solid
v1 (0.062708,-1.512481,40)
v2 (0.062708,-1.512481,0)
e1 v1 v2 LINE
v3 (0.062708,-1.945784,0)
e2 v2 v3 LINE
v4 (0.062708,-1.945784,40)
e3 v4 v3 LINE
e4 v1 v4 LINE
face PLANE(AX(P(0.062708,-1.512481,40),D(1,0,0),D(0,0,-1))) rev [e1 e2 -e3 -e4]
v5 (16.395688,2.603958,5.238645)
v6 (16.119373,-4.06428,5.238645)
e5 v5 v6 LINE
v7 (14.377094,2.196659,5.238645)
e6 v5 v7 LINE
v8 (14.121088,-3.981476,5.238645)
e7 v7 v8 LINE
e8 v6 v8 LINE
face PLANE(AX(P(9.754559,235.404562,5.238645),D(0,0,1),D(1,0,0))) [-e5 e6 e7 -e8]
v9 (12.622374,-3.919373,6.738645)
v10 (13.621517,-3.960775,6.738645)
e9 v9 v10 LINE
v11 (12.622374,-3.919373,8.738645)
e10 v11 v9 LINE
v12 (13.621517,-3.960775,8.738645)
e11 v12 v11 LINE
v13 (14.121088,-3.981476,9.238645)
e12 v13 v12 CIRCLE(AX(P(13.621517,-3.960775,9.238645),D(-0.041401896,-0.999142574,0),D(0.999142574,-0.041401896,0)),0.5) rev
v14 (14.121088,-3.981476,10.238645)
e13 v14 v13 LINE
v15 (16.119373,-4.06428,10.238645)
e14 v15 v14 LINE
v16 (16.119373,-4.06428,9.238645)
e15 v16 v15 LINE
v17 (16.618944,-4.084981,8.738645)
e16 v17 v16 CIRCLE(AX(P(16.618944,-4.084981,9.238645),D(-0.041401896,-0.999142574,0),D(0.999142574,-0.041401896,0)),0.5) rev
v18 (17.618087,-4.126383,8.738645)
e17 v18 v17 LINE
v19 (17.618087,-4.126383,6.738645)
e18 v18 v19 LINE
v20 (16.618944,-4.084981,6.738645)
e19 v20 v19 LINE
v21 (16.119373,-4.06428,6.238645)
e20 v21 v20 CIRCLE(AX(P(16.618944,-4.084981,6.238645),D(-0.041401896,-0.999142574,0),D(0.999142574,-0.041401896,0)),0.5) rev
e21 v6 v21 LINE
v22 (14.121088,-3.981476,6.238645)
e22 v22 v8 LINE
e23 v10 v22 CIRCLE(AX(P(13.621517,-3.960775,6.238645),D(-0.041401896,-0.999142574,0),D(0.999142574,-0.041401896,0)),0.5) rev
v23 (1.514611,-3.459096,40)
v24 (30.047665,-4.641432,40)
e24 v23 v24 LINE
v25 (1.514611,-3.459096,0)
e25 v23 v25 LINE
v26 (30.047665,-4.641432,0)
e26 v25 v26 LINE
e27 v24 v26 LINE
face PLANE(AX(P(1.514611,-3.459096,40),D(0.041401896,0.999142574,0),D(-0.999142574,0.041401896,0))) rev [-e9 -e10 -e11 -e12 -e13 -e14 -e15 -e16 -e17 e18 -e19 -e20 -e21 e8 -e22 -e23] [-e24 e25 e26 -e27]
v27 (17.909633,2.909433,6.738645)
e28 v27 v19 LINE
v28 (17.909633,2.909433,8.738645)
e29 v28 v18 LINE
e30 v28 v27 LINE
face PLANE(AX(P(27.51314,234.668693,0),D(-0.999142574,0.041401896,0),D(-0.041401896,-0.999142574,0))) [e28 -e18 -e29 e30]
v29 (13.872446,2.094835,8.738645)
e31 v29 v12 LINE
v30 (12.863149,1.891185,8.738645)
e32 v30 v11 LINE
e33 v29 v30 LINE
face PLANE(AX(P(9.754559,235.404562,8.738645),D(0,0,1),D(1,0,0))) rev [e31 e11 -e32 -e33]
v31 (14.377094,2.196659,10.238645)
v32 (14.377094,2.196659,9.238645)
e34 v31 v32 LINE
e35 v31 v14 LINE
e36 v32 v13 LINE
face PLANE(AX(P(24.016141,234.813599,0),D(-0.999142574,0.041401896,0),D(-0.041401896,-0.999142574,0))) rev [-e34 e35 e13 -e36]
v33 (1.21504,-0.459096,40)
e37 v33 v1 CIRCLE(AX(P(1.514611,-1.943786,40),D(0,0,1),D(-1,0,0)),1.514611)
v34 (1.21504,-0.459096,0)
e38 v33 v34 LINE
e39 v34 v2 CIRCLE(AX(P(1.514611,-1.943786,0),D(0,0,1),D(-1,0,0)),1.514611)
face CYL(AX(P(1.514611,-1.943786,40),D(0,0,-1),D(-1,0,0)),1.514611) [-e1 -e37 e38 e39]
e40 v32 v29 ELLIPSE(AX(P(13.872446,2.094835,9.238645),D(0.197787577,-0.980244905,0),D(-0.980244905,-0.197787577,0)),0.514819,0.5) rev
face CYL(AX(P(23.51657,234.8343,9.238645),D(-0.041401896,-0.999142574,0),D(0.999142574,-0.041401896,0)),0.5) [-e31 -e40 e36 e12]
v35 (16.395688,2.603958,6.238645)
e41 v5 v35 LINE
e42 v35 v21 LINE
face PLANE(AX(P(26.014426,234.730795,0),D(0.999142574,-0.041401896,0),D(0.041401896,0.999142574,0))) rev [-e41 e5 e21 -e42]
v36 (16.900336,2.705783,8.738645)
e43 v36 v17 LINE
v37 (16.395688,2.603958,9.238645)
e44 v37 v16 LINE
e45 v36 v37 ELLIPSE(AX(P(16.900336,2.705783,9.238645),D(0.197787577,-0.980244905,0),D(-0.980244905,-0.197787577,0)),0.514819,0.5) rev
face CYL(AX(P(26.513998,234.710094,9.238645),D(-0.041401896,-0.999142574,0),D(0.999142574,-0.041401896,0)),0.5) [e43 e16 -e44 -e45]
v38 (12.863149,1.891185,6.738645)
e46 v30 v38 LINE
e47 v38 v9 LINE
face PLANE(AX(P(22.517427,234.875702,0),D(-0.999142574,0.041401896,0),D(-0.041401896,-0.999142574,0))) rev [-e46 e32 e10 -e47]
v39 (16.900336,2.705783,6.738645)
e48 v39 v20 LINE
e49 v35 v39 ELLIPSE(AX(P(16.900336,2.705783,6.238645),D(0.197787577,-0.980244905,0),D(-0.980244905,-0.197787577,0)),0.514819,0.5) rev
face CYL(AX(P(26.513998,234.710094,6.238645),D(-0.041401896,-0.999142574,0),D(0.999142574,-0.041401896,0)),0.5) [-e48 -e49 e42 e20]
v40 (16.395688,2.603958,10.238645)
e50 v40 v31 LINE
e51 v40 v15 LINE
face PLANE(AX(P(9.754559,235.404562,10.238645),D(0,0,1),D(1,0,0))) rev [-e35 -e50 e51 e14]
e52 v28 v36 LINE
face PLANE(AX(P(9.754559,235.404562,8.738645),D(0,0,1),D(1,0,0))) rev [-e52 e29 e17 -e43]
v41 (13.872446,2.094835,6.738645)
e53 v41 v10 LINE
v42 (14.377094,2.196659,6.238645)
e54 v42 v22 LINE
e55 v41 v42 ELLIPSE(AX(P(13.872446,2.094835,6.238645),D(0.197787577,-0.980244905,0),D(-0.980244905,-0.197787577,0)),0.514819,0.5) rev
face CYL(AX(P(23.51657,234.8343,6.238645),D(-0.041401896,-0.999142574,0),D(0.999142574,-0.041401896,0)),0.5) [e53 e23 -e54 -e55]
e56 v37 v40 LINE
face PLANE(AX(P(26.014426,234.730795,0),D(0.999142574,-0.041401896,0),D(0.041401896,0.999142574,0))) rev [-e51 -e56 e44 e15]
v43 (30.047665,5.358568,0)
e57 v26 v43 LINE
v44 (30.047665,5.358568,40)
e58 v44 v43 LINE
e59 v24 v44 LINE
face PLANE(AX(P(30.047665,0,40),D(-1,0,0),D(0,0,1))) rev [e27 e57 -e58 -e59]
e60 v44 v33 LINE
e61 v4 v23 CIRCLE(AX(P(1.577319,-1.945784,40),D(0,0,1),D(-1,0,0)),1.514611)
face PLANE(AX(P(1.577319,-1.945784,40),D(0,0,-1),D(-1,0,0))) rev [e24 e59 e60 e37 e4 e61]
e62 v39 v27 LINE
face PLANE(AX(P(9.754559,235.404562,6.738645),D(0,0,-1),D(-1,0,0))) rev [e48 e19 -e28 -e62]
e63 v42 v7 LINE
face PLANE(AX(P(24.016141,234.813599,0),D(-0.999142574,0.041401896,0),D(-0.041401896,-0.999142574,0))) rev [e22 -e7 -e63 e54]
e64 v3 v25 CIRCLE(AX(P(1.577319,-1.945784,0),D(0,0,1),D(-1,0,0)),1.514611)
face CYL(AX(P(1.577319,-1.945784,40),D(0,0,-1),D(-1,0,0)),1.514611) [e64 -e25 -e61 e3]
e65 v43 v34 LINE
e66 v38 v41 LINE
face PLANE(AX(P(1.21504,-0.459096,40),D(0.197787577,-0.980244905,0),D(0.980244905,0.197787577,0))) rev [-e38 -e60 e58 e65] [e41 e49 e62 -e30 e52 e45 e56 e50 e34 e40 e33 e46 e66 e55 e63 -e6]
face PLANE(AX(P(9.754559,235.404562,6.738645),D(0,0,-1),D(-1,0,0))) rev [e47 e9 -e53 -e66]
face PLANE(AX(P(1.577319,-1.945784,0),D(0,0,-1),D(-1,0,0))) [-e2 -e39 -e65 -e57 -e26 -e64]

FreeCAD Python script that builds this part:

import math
import FreeCAD as App
import Part
import Sketcher

V = App.Vector

doc = App.newDocument("Part")
body = doc.addObject("PartDesign::Body", "Body")

sketch1 = body.newObject("Sketcher::SketchObject", "Sketch")
sketch1.AttachmentSupport = (doc.getObject("XY_Plane"), [""])
sketch1.MapMode = "FlatFace"
sketch1.addGeometry(Part.LineSegment(V(30.05, 5.36, 0), V(1.22, -0.46, 0)), False)
sketch1.addGeometry(Part.ArcOfCircle(Part.Circle(V(1.51, -1.94, 0), V(0, 0, 1), 1.51), math.radians(101), math.radians(163)), False)
sketch1.addGeometry(Part.LineSegment(V(0.06, -1.51, 0), V(0.06, -1.95, 0)), False)
sketch1.addGeometry(Part.ArcOfCircle(Part.Circle(V(1.58, -1.95, 0), V(0, 0, 1), 1.51), math.radians(180), math.radians(268)), False)
sketch1.addGeometry(Part.LineSegment(V(1.51, -3.46, 0), V(30.05, -4.64, 0)), False)
sketch1.addGeometry(Part.LineSegment(V(30.05, -4.64, 0), V(30.05, 5.36, 0)), False)
sketch1.addConstraint(Sketcher.Constraint("Tangent", 0, 2, 1, 1))
sketch1.addConstraint(Sketcher.Constraint("Coincident", 1, 2, 2, 1))
sketch1.addConstraint(Sketcher.Constraint("Tangent", 2, 2, 3, 1))
sketch1.addConstraint(Sketcher.Constraint("Tangent", 3, 2, 4, 1))
sketch1.addConstraint(Sketcher.Constraint("Coincident", 4, 2, 5, 1))
sketch1.addConstraint(Sketcher.Constraint("Coincident", 5, 2, 0, 1))
sketch1.addConstraint(Sketcher.Constraint("Vertical", 2))
sketch1.addConstraint(Sketcher.Constraint("Vertical", 5))
sketch1.addConstraint(Sketcher.Constraint("Equal", 1, 3))
sketch1.addConstraint(Sketcher.Constraint("Vertical", 1, 3, 3, 2))
sketch1.addConstraint(Sketcher.Constraint("DistanceY", 5, 1, 5, 2, 10.0))
sketch1.addConstraint(Sketcher.Constraint("DistanceY", 3, 2, 0, 2, 3.0))
sketch1.addConstraint(Sketcher.Constraint("Radius", 1, 1.514611))
sketch1.addConstraint(Sketcher.Constraint("DistanceY", 3, 3, 1, 3, 0.001998))
sketch1.addConstraint(Sketcher.Constraint("Distance", 4, 28.55754))
sketch1.addConstraint(Sketcher.Constraint("DistanceX", -1, 1, 1, 3, 1.514611))
sketch1.addConstraint(Sketcher.Constraint("DistanceY", 1, 2, -1, 1, 1.512481))
pad1 = body.newObject("PartDesign::Pad", "Pad")
pad1.Profile = sketch1
pad1.Length = 40

sketch2 = body.newObject("Sketcher::SketchObject", "Sketch001")
sketch2.Placement = App.Placement(V(-0.140494, -3.390513, 0), App.Rotation(V(0.999142574, -0.041401896, 0), V(0, 0, 1), V(-0.041401896, -0.999142574, 0), "ZXY"))
sketch2.addGeometry(Part.LineSegment(V(16.27, 5.24, 0), V(16.27, 6.24, 0)), False)
sketch2.addGeometry(Part.ArcOfCircle(Part.Circle(V(16.77, 6.24, 0), V(0, 0, 1), 0.5), math.radians(90), math.radians(180)), False)
sketch2.addGeometry(Part.LineSegment(V(16.77, 6.74, 0), V(17.77, 6.74, 0)), False)
sketch2.addGeometry(Part.LineSegment(V(17.77, 6.74, 0), V(17.77, 8.74, 0)), False)
sketch2.addGeometry(Part.LineSegment(V(17.77, 8.74, 0), V(16.77, 8.74, 0)), False)
sketch2.addGeometry(Part.ArcOfCircle(Part.Circle(V(16.77, 9.24, 0), V(0, 0, 1), 0.5), math.radians(180), math.radians(270)), False)
sketch2.addGeometry(Part.LineSegment(V(16.27, 9.24, 0), V(16.27, 10.24, 0)), False)
sketch2.addGeometry(Part.LineSegment(V(16.27, 10.24, 0), V(14.27, 10.24, 0)), False)
sketch2.addGeometry(Part.LineSegment(V(14.27, 10.24, 0), V(14.27, 9.24, 0)), False)
sketch2.addGeometry(Part.ArcOfCircle(Part.Circle(V(13.77, 9.24, 0), V(0, 0, 1), 0.5), math.radians(-90), math.radians(0)), False)
sketch2.addGeometry(Part.LineSegment(V(13.77, 8.74, 0), V(12.77, 8.74, 0)), False)
sketch2.addGeometry(Part.LineSegment(V(12.77, 8.74, 0), V(12.77, 6.74, 0)), False)
sketch2.addGeometry(Part.LineSegment(V(12.77, 6.74, 0), V(13.77, 6.74, 0)), False)
sketch2.addGeometry(Part.ArcOfCircle(Part.Circle(V(13.77, 6.24, 0), V(0, 0, 1), 0.5), math.radians(0), math.radians(90)), False)
sketch2.addGeometry(Part.LineSegment(V(14.27, 6.24, 0), V(14.27, 5.24, 0)), False)
sketch2.addGeometry(Part.LineSegment(V(14.27, 5.24, 0), V(16.27, 5.24, 0)), False)
sketch2.addConstraint(Sketcher.Constraint("Tangent", 0, 2, 1, 2))
sketch2.addConstraint(Sketcher.Constraint("Tangent", 1, 1, 2, 1))
sketch2.addConstraint(Sketcher.Constraint("Coincident", 2, 2, 3, 1))
sketch2.addConstraint(Sketcher.Constraint("Coincident", 3, 2, 4, 1))
sketch2.addConstraint(Sketcher.Constraint("Tangent", 4, 2, 5, 2))
sketch2.addConstraint(Sketcher.Constraint("Tangent", 5, 1, 6, 1))
sketch2.addConstraint(Sketcher.Constraint("Coincident", 6, 2, 7, 1))
sketch2.addConstraint(Sketcher.Constraint("Coincident", 7, 2, 8, 1))
sketch2.addConstraint(Sketcher.Constraint("Tangent", 8, 2, 9, 2))
sketch2.addConstraint(Sketcher.Constraint("Tangent", 9, 1, 10, 1))
sketch2.addConstraint(Sketcher.Constraint("Coincident", 10, 2, 11, 1))
sketch2.addConstraint(Sketcher.Constraint("Coincident", 11, 2, 12, 1))
sketch2.addConstraint(Sketcher.Constraint("Tangent", 12, 2, 13, 2))
sketch2.addConstraint(Sketcher.Constraint("Tangent", 13, 1, 14, 1))
sketch2.addConstraint(Sketcher.Constraint("Coincident", 14, 2, 15, 1))
sketch2.addConstraint(Sketcher.Constraint("Coincident", 15, 2, 0, 1))
sketch2.addConstraint(Sketcher.Constraint("Vertical", 0))
sketch2.addConstraint(Sketcher.Constraint("Horizontal", 2))
sketch2.addConstraint(Sketcher.Constraint("Vertical", 3))
sketch2.addConstraint(Sketcher.Constraint("Horizontal", 4))
sketch2.addConstraint(Sketcher.Constraint("Vertical", 6))
sketch2.addConstraint(Sketcher.Constraint("Horizontal", 7))
sketch2.addConstraint(Sketcher.Constraint("Vertical", 8))
sketch2.addConstraint(Sketcher.Constraint("Horizontal", 10))
sketch2.addConstraint(Sketcher.Constraint("Vertical", 11))
sketch2.addConstraint(Sketcher.Constraint("Horizontal", 12))
sketch2.addConstraint(Sketcher.Constraint("Vertical", 14))
sketch2.addConstraint(Sketcher.Constraint("Horizontal", 15))
sketch2.addConstraint(Sketcher.Constraint("Equal", 1, 5))
sketch2.addConstraint(Sketcher.Constraint("Equal", 5, 9))
sketch2.addConstraint(Sketcher.Constraint("Equal", 9, 13))
sketch2.addConstraint(Sketcher.Constraint("Horizontal", 5, 3, 9, 3))
sketch2.addConstraint(Sketcher.Constraint("Horizontal", 1, 3, 13, 3))
sketch2.addConstraint(Sketcher.Constraint("Vertical", 1, 3, 5, 3))
sketch2.addConstraint(Sketcher.Constraint("Vertical", 9, 3, 13, 3))
sketch2.addConstraint(Sketcher.Constraint("Equal", 4, 10))
sketch2.addConstraint(Sketcher.Constraint("Equal", 12, 0))
sketch2.addConstraint(Sketcher.Constraint("Equal", 15, 3))
sketch2.addConstraint(Sketcher.Constraint("Equal", 0, 6))
sketch2.addConstraint(Sketcher.Constraint("Radius", 1, 0.5))
sketch2.addConstraint(Sketcher.Constraint("DistanceX", 2, 1, 2, 2, 1.0))
sketch2.addConstraint(Sketcher.Constraint("DistanceX", 7, 2, 7, 1, 2.0))
sketch2.addConstraint(Sketcher.Constraint("DistanceX", -1, 1, 1, 3, 16.773821))
sketch2.addConstraint(Sketcher.Constraint("DistanceY", -1, 1, 1, 3, 6.238645))
pocket1 = body.newObject("PartDesign::Pocket", "Pocket")
pocket1.Profile = sketch2
pocket1.Length = 239

doc.recompute()
